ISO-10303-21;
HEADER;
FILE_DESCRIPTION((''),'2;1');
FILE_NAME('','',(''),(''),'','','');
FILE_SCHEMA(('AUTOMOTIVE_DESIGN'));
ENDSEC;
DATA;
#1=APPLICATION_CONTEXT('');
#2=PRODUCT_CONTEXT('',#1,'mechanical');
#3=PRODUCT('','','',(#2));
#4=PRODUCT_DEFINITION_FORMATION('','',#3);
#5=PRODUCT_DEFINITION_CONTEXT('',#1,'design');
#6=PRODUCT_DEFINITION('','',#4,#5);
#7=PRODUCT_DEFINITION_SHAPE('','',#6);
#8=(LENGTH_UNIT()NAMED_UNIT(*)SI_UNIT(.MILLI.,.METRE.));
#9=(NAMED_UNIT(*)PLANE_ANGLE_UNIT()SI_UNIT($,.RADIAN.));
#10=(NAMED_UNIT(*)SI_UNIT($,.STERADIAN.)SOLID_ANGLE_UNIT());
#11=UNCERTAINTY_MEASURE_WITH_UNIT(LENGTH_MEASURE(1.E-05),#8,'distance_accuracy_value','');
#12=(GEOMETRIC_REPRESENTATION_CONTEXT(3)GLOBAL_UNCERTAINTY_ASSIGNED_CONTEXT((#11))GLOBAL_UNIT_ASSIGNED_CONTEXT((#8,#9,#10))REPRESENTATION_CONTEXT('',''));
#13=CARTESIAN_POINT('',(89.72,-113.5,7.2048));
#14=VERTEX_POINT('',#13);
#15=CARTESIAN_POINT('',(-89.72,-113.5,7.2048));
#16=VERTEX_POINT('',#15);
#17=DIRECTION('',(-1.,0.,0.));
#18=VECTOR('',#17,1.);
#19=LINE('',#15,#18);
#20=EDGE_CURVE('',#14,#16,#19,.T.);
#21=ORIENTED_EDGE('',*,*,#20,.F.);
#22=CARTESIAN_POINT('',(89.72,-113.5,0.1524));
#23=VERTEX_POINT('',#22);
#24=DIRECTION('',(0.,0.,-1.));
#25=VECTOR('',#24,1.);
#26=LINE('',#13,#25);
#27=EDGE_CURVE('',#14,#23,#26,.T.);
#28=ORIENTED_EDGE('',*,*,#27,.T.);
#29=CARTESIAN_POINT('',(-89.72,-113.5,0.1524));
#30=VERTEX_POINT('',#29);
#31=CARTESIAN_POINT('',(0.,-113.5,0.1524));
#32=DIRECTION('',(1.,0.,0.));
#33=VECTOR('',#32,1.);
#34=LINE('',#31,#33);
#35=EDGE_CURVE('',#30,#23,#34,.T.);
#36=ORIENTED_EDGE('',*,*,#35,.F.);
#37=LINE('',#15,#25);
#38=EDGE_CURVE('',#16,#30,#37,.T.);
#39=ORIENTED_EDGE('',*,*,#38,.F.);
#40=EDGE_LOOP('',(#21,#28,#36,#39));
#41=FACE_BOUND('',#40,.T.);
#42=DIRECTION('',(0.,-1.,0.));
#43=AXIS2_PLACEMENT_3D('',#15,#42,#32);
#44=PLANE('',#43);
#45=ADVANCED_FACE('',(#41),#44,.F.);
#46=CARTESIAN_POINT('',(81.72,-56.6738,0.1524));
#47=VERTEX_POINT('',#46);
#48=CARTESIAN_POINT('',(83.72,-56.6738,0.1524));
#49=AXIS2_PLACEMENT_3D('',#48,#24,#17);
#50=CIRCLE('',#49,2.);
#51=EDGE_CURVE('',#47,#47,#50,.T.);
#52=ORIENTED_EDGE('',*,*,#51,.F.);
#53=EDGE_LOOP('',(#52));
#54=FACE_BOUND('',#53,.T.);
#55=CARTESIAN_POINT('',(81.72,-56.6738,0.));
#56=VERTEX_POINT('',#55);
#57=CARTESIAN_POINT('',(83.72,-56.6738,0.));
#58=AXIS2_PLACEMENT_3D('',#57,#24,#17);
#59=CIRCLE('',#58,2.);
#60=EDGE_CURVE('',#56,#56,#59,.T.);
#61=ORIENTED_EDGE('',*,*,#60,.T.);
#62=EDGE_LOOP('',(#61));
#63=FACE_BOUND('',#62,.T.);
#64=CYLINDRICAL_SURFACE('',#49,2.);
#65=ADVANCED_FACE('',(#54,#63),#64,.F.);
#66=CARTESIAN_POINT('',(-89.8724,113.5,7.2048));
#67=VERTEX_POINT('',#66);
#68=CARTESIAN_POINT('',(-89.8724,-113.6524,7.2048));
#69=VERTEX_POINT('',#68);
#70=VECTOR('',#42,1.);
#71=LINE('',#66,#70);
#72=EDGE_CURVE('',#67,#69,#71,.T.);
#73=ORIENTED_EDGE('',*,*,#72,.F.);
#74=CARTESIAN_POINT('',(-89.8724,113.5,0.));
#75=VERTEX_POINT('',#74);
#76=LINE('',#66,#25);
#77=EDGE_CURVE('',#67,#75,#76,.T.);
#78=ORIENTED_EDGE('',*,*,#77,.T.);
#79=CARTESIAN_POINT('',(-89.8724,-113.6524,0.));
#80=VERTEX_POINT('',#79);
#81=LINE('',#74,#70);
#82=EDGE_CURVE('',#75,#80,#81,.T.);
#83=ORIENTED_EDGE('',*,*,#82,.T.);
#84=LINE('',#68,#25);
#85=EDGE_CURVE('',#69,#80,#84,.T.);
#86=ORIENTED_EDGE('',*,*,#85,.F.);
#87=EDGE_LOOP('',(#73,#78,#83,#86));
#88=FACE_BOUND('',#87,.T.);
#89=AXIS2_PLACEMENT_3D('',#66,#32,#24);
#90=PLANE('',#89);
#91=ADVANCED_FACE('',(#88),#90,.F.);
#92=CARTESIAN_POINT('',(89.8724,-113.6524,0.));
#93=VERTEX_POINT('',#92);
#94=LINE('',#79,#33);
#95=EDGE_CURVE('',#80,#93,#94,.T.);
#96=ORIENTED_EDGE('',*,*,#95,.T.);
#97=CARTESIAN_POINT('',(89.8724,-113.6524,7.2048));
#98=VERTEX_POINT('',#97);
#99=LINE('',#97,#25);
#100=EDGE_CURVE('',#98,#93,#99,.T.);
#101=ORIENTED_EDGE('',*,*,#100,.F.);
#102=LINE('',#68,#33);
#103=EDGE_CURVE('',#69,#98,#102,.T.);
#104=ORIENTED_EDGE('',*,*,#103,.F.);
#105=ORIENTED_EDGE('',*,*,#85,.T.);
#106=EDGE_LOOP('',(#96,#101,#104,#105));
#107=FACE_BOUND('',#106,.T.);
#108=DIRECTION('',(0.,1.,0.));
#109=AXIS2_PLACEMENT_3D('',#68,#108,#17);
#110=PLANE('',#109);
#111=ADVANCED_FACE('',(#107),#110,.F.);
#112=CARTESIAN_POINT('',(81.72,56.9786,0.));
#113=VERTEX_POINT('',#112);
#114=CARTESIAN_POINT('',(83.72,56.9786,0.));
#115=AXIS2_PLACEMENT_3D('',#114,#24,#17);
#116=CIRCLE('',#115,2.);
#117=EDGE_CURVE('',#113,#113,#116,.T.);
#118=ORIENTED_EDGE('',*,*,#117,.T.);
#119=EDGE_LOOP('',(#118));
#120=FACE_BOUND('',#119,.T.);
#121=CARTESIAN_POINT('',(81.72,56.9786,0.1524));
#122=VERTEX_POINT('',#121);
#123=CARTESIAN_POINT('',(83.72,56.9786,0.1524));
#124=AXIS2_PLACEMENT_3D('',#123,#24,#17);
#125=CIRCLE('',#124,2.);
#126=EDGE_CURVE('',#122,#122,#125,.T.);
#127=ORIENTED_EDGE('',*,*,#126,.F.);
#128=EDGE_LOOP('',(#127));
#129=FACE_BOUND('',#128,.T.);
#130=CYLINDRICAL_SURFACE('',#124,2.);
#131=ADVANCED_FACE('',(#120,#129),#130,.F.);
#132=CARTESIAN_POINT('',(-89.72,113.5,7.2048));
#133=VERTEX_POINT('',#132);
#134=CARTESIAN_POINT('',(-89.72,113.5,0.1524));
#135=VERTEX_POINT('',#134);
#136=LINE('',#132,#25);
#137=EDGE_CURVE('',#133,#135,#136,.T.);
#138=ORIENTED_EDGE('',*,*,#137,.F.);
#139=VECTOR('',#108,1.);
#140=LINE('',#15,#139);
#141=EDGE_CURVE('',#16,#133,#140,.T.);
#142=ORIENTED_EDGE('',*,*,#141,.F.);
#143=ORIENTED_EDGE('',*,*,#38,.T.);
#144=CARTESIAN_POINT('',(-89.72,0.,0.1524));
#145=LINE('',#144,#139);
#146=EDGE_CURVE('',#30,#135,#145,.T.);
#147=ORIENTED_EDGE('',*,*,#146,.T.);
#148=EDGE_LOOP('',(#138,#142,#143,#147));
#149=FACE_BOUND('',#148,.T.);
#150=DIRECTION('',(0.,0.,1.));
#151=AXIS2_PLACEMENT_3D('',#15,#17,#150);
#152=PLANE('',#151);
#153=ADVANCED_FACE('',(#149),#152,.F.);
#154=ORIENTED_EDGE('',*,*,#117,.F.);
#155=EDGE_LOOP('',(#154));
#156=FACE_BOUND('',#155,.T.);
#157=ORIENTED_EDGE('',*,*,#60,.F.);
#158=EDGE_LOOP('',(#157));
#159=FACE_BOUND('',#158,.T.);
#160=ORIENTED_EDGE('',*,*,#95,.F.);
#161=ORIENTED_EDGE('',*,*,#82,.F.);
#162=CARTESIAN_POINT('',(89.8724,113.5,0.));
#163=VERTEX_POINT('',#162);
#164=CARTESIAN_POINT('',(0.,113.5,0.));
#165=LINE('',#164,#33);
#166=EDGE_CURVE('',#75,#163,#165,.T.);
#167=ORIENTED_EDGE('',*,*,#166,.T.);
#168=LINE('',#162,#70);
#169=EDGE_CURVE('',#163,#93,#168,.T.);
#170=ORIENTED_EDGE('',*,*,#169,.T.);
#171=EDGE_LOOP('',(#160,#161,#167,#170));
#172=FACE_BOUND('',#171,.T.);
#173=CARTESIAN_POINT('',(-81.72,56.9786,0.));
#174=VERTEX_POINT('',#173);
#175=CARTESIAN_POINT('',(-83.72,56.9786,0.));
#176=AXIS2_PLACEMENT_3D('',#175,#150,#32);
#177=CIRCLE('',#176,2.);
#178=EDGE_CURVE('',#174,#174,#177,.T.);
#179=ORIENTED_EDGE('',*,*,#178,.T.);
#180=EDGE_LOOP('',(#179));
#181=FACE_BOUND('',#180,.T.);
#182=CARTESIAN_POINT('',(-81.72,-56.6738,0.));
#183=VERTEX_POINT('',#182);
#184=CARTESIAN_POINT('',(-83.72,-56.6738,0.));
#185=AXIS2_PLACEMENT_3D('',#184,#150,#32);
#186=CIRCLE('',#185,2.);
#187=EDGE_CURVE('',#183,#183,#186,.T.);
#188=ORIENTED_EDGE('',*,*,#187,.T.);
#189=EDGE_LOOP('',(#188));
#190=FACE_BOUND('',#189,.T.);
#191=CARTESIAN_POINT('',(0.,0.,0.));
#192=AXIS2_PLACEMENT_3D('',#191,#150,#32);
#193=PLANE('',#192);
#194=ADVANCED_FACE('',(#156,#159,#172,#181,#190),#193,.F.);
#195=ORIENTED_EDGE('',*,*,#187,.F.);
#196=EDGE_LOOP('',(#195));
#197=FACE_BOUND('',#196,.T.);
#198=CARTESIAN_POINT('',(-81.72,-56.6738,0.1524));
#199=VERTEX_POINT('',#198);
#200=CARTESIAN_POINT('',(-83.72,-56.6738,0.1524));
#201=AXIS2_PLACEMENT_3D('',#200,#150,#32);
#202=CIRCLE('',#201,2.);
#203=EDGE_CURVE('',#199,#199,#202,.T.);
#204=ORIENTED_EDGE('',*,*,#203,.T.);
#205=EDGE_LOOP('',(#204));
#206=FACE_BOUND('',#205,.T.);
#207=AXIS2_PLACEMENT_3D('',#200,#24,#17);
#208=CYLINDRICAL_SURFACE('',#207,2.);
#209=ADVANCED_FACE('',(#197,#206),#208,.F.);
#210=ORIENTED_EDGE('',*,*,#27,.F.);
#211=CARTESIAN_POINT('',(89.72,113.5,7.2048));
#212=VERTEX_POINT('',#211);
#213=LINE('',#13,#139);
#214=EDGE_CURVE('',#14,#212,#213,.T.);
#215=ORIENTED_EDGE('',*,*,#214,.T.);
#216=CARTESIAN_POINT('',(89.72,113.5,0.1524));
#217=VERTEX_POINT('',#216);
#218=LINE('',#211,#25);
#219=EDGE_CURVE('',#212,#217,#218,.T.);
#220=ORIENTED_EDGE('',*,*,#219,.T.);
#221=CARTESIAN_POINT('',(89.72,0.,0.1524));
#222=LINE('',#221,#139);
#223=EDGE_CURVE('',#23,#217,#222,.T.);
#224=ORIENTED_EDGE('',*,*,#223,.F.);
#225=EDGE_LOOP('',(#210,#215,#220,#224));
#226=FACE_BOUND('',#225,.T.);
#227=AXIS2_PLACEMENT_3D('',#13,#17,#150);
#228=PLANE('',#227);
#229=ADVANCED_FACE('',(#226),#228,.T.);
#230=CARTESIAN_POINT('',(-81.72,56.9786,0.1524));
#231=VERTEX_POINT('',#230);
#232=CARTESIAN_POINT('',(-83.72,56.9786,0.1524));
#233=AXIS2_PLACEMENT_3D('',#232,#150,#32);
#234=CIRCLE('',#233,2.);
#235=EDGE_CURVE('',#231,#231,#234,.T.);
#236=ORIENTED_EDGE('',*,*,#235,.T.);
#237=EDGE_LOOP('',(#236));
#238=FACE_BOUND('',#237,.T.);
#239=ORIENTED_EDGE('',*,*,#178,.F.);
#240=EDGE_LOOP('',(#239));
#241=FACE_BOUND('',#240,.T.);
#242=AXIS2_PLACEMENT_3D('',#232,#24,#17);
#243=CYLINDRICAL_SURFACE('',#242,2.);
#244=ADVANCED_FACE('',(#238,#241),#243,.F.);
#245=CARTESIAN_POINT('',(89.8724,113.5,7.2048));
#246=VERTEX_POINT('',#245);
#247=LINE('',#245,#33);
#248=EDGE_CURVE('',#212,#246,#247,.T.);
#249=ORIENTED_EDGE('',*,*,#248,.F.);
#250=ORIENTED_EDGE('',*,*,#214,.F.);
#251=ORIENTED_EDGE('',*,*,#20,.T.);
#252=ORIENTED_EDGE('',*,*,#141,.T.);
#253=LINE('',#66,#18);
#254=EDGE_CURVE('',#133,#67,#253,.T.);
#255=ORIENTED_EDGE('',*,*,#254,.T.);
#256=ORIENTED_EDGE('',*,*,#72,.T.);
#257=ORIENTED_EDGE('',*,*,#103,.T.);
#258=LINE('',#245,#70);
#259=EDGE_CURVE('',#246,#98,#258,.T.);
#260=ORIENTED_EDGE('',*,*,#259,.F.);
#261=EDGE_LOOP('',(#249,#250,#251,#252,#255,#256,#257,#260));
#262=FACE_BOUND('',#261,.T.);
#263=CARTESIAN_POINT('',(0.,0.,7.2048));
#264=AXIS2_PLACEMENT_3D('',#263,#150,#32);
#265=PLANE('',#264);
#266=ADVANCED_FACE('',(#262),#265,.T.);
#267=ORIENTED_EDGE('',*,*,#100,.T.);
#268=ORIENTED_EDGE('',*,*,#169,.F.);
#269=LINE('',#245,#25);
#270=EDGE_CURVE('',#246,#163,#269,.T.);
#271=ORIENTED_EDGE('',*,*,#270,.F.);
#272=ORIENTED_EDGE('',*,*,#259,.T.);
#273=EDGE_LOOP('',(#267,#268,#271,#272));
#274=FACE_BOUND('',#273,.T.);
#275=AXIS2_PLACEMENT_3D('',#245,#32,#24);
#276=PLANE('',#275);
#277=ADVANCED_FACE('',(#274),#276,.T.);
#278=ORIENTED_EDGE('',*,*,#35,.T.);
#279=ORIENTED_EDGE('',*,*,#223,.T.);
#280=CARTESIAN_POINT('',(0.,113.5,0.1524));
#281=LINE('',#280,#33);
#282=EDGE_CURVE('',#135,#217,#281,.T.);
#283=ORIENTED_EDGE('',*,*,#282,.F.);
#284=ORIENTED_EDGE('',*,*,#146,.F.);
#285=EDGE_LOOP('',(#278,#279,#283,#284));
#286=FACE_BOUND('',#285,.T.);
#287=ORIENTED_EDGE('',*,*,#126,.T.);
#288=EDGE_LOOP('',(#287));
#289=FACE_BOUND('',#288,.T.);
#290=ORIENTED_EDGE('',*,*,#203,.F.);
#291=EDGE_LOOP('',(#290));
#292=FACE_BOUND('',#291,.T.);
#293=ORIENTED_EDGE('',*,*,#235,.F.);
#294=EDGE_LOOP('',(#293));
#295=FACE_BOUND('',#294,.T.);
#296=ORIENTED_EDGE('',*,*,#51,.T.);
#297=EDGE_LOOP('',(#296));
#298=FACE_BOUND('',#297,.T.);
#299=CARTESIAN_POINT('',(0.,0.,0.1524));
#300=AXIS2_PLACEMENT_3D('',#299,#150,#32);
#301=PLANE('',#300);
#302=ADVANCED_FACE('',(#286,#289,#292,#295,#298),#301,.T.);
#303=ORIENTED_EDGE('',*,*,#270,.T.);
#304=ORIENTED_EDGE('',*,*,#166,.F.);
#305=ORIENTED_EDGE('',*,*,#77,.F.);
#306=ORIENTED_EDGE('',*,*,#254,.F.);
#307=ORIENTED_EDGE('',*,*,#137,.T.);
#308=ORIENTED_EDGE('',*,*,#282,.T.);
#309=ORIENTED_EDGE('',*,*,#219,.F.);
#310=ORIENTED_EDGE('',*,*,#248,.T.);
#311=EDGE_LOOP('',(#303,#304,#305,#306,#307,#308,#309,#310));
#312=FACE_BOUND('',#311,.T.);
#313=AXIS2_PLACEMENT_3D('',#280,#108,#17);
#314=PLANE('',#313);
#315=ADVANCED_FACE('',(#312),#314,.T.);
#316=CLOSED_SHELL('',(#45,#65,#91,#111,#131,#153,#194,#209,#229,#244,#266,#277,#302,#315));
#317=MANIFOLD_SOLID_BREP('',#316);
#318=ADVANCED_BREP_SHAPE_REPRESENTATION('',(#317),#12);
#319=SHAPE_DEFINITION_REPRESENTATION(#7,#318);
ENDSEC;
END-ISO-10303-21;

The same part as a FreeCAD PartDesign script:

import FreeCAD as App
import Part
import Sketcher

V = App.Vector
Q = App.Units.Quantity

doc = App.newDocument("Part")
params = doc.addObject("Spreadsheet::Sheet", "Params")
for row, (alias, value) in enumerate([
    ("sketch1_diameter", "4 mm"),
    ("sketch1_height", "227 mm"),
    ("sketch1_width", "89.72 mm"),
    ("pad1_length", "0.1524 mm"),
    ("sketch2_height", "227 mm"),
    ("sketch2_width", "89.72 mm"),
    ("pad2_length", "7.2048 mm"),
], start=1):
    params.set(f"A{row}", alias)
    params.set(f"B{row}", "=" + value)
    params.setAlias(f"B{row}", alias)

body = doc.addObject("PartDesign::Body", "Body")

# Sketch on XY plane
sketch1 = doc.addObject("Sketcher::SketchObject", "Sketch")
body.addObject(sketch1)
sketch1.AttachmentSupport = (doc.XY_Plane, [""])
sketch1.MapMode = "FlatFace"
sketch1.addGeometry([
    Part.LineSegment(V(-89.7, 113.5, 0), V(-89.7, -113.5, 0)),  # 0
    Part.LineSegment(V(-89.7, -113.5, 0), V(0, -113.5, 0)),  # 1
    Part.LineSegment(V(0, -113.5, 0), V(0, 113.5, 0)),  # 2
    Part.LineSegment(V(0, 113.5, 0), V(-89.7, 113.5, 0)),  # 3
    Part.Circle(V(-83.7, -56.7, 0), V(0, 0, 1), 2),  # 4
    Part.Circle(V(-83.7, 57, 0), V(0, 0, 1), 2),  # 5
], False)
sketch1.addConstraint([
    Sketcher.Constraint("Coincident", 0, 2, 1, 1),
    Sketcher.Constraint("Coincident", 1, 2, 2, 1),
    Sketcher.Constraint("Coincident", 2, 2, 3, 1),
    Sketcher.Constraint("Coincident", 3, 2, 0, 1),
    Sketcher.Constraint("Vertical", 0),
    Sketcher.Constraint("Horizontal", 1),
    Sketcher.Constraint("Vertical", 2),
    Sketcher.Constraint("Horizontal", 3),
    Sketcher.Constraint("Equal", 4, 5),
    Sketcher.Constraint("Symmetric", 1, 2, 2, 2, -1, 1),
    Sketcher.Constraint("Vertical", 4, 3, 5, 3),
    Sketcher.Constraint("Diameter", 4, Q("4 mm")),
    Sketcher.Constraint("DistanceY", 0, 2, 0, 1, Q("227 mm")),
    Sketcher.Constraint("DistanceX", 0, 2, 4, 3, Q("6 mm")),
    Sketcher.Constraint("DistanceX", 1, 1, 1, 2, Q("89.72 mm")),
    Sketcher.Constraint("DistanceY", 4, 3, -1, 1, Q("56.6738 mm")),
    Sketcher.Constraint("DistanceY", -1, 1, 5, 3, Q("56.9786 mm")),
])
sketch1.setExpression("Constraints[11]", "Params.sketch1_diameter")
sketch1.setExpression("Constraints[12]", "Params.sketch1_height")
sketch1.setExpression("Constraints[14]", "Params.sketch1_width")
pad1 = doc.addObject("PartDesign::Pad", "Pad")
body.addObject(pad1)
pad1.Profile = sketch1
pad1.setExpression("Length", "Params.pad1_length")

# Sketch on XY plane
sketch2 = doc.addObject("Sketcher::SketchObject", "Sketch001")
body.addObject(sketch2)
sketch2.AttachmentSupport = (doc.XY_Plane, [""])
sketch2.MapMode = "FlatFace"
sketch2.addGeometry([
    Part.LineSegment(V(0, -113.65, 0), V(0, -113.5, 0)),  # 0
    Part.LineSegment(V(0, -113.5, 0), V(-89.72, -113.5, 0)),  # 1
    Part.LineSegment(V(-89.72, -113.5, 0), V(-89.72, 113.5, 0)),  # 2
    Part.LineSegment(V(-89.72, 113.5, 0), V(-89.87, 113.5, 0)),  # 3
    Part.LineSegment(V(-89.87, 113.5, 0), V(-89.87, -113.65, 0)),  # 4
    Part.LineSegment(V(-89.87, -113.65, 0), V(0, -113.65, 0)),  # 5
], False)
sketch2.addConstraint([
    Sketcher.Constraint("Coincident", 0, 2, 1, 1),
    Sketcher.Constraint("Coincident", 1, 2, 2, 1),
    Sketcher.Constraint("Coincident", 2, 2, 3, 1),
    Sketcher.Constraint("Coincident", 3, 2, 4, 1),
    Sketcher.Constraint("Coincident", 4, 2, 5, 1),
    Sketcher.Constraint("Coincident", 5, 2, 0, 1),
    Sketcher.Constraint("Vertical", 0),
    Sketcher.Constraint("Horizontal", 1),
    Sketcher.Constraint("Vertical", 2),
    Sketcher.Constraint("Horizontal", 3),
    Sketcher.Constraint("Vertical", 4),
    Sketcher.Constraint("Horizontal", 5),
    Sketcher.Constraint("PointOnObject", 0, 2, -2),
    Sketcher.Constraint("Equal", 3, 0),
    Sketcher.Constraint("DistanceY", 2, 1, 2, 2, Q("227 mm")),
    Sketcher.Constraint("DistanceX", 1, 2, 1, 1, Q("89.72 mm")),
    Sketcher.Constraint("DistanceY", 0, 2, -1, 1, Q("113.5 mm")),
    Sketcher.Constraint("DistanceX", 3, 2, 3, 1, Q("0.1524 mm")),
])
sketch2.setExpression("Constraints[14]", "Params.sketch2_height")
sketch2.setExpression("Constraints[15]", "Params.sketch2_width")
pad2 = doc.addObject("PartDesign::Pad", "Pad001")
body.addObject(pad2)
pad2.Profile = sketch2
pad2.setExpression("Length", "Params.pad2_length")
doc.recompute()

mirrored = doc.addObject("PartDesign::Mirrored", "Mirrored")
body.addObject(mirrored)
mirrored.Originals = [pad1, pad2]
mirrored.MirrorPlane = (doc.YZ_Plane, [""])
body.Tip = mirrored

doc.recompute()
